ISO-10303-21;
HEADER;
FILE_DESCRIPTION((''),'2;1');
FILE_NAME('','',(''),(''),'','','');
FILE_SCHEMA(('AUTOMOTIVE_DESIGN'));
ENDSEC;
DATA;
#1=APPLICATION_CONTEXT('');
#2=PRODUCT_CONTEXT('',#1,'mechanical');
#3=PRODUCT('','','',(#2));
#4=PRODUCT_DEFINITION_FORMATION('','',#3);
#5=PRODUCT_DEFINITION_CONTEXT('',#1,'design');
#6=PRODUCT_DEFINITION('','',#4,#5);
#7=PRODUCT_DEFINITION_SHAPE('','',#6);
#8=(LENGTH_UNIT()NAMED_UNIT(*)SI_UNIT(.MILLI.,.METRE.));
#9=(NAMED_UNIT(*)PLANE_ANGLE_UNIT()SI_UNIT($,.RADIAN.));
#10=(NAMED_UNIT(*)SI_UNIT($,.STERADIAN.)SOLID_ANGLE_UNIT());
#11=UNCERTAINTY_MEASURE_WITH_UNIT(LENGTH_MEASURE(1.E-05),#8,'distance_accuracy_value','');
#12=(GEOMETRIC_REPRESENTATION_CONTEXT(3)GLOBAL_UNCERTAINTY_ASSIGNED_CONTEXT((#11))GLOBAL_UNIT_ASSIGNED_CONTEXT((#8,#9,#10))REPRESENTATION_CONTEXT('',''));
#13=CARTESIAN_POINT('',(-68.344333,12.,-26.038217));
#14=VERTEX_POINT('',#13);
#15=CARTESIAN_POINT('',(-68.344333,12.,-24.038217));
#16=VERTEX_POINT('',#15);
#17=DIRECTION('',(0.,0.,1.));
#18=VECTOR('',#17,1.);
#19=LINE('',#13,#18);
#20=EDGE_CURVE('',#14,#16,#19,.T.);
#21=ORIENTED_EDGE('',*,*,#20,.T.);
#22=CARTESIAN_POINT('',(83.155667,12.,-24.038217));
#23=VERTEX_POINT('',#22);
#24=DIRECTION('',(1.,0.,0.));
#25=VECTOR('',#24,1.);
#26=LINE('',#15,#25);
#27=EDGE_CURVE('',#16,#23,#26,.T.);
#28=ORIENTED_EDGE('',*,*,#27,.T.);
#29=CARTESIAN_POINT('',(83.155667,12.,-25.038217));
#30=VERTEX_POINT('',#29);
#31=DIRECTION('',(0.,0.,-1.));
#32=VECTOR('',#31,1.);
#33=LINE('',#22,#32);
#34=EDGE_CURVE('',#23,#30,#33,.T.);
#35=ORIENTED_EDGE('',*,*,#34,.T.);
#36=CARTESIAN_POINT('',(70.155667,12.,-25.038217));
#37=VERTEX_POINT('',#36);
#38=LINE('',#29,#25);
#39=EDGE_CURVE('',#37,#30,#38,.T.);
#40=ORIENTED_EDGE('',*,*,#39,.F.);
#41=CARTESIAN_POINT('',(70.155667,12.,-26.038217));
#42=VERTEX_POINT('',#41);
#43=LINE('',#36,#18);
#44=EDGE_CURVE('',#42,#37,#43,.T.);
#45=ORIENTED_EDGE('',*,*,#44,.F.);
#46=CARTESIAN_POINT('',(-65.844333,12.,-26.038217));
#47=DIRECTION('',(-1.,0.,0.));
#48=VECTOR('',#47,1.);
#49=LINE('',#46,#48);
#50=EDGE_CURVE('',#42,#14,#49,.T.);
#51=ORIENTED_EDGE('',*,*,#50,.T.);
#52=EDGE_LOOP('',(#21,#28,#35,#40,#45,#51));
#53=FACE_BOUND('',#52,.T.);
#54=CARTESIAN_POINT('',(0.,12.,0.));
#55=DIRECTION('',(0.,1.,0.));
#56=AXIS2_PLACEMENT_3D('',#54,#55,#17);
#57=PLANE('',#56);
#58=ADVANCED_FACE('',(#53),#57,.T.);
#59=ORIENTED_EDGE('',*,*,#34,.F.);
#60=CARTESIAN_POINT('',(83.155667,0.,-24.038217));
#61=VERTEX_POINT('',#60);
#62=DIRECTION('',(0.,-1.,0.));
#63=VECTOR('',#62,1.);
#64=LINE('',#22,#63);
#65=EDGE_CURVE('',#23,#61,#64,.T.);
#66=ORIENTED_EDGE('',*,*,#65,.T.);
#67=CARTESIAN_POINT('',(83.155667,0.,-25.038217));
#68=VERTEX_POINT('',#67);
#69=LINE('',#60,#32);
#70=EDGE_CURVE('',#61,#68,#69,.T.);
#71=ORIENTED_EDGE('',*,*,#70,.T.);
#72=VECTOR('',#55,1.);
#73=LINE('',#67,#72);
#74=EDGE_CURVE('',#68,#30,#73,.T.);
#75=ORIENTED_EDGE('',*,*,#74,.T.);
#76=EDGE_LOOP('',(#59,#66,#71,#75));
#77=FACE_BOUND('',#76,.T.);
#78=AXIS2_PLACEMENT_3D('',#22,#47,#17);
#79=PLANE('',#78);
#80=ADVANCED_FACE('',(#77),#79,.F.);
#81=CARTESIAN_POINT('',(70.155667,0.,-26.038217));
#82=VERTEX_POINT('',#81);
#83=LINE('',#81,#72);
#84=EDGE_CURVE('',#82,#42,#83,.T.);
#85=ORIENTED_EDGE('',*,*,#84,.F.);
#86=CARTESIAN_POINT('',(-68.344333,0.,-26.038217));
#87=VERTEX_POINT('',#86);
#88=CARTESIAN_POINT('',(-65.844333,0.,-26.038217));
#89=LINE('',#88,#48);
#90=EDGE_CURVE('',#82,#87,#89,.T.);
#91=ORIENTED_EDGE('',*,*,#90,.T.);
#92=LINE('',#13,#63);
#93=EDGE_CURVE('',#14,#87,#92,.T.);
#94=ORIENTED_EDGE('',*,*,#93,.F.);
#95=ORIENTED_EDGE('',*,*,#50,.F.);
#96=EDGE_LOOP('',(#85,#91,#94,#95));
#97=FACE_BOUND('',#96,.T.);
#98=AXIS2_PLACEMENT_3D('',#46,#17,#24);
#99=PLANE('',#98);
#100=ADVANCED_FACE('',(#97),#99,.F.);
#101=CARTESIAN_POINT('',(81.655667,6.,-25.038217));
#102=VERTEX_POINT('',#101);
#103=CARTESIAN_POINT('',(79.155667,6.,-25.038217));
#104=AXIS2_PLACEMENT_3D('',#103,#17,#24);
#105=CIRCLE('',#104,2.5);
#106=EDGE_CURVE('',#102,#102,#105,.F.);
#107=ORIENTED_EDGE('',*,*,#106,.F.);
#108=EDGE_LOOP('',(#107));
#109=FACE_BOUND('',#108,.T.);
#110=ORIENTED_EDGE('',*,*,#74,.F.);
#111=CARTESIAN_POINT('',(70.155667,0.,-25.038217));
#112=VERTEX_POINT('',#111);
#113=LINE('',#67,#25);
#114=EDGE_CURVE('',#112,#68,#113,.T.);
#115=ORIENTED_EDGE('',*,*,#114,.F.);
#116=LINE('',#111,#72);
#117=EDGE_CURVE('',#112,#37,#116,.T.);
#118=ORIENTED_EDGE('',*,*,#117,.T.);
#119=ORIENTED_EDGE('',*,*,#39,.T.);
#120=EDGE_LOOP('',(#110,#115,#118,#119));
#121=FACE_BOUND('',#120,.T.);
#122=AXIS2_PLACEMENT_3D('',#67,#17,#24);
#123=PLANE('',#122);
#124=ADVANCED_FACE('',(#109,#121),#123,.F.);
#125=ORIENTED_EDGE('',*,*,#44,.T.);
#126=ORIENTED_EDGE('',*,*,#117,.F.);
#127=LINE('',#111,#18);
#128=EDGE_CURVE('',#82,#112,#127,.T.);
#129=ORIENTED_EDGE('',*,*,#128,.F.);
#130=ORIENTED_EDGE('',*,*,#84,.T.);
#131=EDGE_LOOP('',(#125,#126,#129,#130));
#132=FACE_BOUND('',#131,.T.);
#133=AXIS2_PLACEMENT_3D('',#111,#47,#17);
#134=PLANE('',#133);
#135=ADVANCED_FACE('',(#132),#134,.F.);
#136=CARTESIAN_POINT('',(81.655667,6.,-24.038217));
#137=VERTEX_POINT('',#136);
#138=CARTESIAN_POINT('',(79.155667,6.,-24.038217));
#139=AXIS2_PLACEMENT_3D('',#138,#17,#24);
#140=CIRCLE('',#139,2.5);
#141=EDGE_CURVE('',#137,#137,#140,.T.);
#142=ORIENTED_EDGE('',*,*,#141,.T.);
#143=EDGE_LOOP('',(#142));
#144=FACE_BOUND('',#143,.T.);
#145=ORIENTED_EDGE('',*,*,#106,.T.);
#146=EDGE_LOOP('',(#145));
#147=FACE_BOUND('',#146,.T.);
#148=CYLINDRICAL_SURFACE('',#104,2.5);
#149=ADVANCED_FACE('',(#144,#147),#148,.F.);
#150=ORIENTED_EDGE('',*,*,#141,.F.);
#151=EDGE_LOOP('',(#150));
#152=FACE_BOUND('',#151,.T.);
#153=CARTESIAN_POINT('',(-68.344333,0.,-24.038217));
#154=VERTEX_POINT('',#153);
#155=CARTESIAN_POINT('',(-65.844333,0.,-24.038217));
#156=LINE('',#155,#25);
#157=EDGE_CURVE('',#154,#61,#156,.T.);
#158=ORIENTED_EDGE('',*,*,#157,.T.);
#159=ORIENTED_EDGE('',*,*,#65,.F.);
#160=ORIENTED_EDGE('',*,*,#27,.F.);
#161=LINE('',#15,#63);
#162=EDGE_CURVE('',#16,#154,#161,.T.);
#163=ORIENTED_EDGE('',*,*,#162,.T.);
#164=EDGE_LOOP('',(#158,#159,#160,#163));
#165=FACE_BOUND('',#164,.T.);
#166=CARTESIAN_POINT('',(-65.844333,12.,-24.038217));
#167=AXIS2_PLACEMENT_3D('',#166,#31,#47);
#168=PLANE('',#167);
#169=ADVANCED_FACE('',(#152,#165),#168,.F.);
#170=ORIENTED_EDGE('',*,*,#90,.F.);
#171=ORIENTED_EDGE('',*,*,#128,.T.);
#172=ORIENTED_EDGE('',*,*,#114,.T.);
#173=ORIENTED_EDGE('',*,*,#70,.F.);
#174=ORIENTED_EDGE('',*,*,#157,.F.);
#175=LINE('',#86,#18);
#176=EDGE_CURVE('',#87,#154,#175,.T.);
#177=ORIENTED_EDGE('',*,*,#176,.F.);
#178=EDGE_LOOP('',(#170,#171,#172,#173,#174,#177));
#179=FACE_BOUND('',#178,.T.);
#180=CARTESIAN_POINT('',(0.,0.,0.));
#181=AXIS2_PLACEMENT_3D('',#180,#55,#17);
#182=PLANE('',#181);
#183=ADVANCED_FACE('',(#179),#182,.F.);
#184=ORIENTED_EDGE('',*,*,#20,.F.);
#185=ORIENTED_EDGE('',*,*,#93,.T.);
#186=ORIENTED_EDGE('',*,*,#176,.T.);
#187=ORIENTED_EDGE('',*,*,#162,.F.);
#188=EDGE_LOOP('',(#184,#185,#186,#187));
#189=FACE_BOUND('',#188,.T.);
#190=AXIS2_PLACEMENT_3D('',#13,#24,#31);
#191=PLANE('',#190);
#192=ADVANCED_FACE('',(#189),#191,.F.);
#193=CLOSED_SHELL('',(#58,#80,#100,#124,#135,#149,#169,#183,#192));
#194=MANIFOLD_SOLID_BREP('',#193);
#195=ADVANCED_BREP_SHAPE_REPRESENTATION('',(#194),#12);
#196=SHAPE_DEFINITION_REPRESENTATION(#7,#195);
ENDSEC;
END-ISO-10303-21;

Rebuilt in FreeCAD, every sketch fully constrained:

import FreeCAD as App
import Part
import Sketcher
from FreeCAD import Vector
Q = App.Units.Quantity


def add_polygon(sketch, points):
    """Adds a closed chain of lines whose ends are joined by coincident constraints."""
    first, n = sketch.GeometryCount, len(points)
    for a, b in zip(points, points[1:] + points[:1]):
        sketch.addGeometry(Part.LineSegment(App.Vector(*a, 0), App.Vector(*b, 0)), False)
    for i in range(n):
        sketch.addConstraint(Sketcher.Constraint("Coincident", first + i, 2, first + (i + 1) % n, 1))

doc = App.newDocument("Part")
body = doc.addObject("PartDesign::Body", "Body")

# Sketch on XZ plane
sketch1 = body.newObject("Sketcher::SketchObject", "Sketch")
sketch1.AttachmentSupport = (doc.getObject("XZ_Plane"), [""])
sketch1.MapMode = "FlatFace"
add_polygon(sketch1, [(83.155667, -24.038217), (83.155667, -26.038217), (-68.344333, -26.038217), (-68.344333, -24.038217)])  # lines 0-3
sketch1.addConstraint(Sketcher.Constraint("Vertical", 0))
sketch1.addConstraint(Sketcher.Constraint("Horizontal", 1))
sketch1.addConstraint(Sketcher.Constraint("Vertical", 2))
sketch1.addConstraint(Sketcher.Constraint("Horizontal", 3))
sketch1.addConstraint(Sketcher.Constraint("DistanceY", 0, 2, 0, 1, Q("2 mm")))
sketch1.addConstraint(Sketcher.Constraint("DistanceX", 1, 2, 1, 1, Q("151.5 mm")))
sketch1.addConstraint(Sketcher.Constraint("DistanceX", -1, 1, 0, 2, Q("83.155667 mm")))
sketch1.addConstraint(Sketcher.Constraint("DistanceY", 0, 2, -1, 1, Q("26.038217 mm")))
pad1 = body.newObject("PartDesign::Pad", "Pad")
pad1.Profile = sketch1
pad1.Length = 12
pad1.Reversed = True

# Sketch on XY plane
sketch2 = body.newObject("Sketcher::SketchObject", "Sketch001")
sketch2.AttachmentSupport = (doc.getObject("XY_Plane"), [""])
sketch2.MapMode = "FlatFace"
sketch2.AttachmentOffset = App.Placement(Vector(0, 0, -24.038217), App.Rotation())
sketch2.addGeometry(Part.Circle(Vector(79.155667, 6, 0), Vector(0, 0, 1), 2.5), False)
sketch2.addConstraint(Sketcher.Constraint("Diameter", 0, Q("5 mm")))
sketch2.addConstraint(Sketcher.Constraint("DistanceY", -1, 1, 0, 3, Q("6 mm")))
sketch2.addConstraint(Sketcher.Constraint("DistanceX", -1, 1, 0, 3, Q("79.155667 mm")))
pocket1 = body.newObject("PartDesign::Pocket", "Pocket")
pocket1.Profile = sketch2
pocket1.Length = 1

# Sketch on XY plane
sketch3 = body.newObject("Sketcher::SketchObject", "Sketch002")
sketch3.AttachmentSupport = (doc.getObject("XY_Plane"), [""])
sketch3.MapMode = "FlatFace"
sketch3.AttachmentOffset = App.Placement(Vector(0, 0, -25.038217), App.Rotation())
sketch3.addGeometry(Part.Circle(Vector(79.155667, 6, 0), Vector(0, 0, 1), 1.5), False)
sketch3.addConstraint(Sketcher.Constraint("Diameter", 0, Q("3 mm")))
sketch3.addConstraint(Sketcher.Constraint("DistanceY", -1, 1, 0, 3, Q("6 mm")))
sketch3.addConstraint(Sketcher.Constraint("DistanceX", -1, 1, 0, 3, Q("79.155667 mm")))
pocket2 = body.newObject("PartDesign::Pocket", "Pocket001")
pocket2.Profile = sketch3
pocket2.Length = 1

# Sketch on XZ plane
sketch4 = body.newObject("Sketcher::SketchObject", "Sketch003")
sketch4.AttachmentSupport = (doc.getObject("XZ_Plane"), [""])
sketch4.MapMode = "FlatFace"
sketch4.AttachmentOffset = App.Placement(Vector(0, 0, -12), App.Rotation())
add_polygon(sketch4, [(70.155667, -26.038217), (70.155667, -25.038217), (83.155667, -25.038217), (83.155667, -26.038217)])  # lines 0-3
sketch4.addConstraint(Sketcher.Constraint("Vertical", 0))
sketch4.addConstraint(Sketcher.Constraint("Horizontal", 1))
sketch4.addConstraint(Sketcher.Constraint("Vertical", 2))
sketch4.addConstraint(Sketcher.Constraint("Horizontal", 3))
sketch4.addConstraint(Sketcher.Constraint("DistanceX", 1, 1, 1, 2, Q("13 mm")))
sketch4.addConstraint(Sketcher.Constraint("DistanceY", 0, 1, 0, 2, Q("1 mm")))
sketch4.addConstraint(Sketcher.Constraint("DistanceX", -1, 1, 0, 2, Q("70.155667 mm")))
sketch4.addConstraint(Sketcher.Constraint("DistanceY", 0, 2, -1, 1, Q("25.038217 mm")))
pocket3 = body.newObject("PartDesign::Pocket", "Pocket002")
pocket3.Profile = sketch4
pocket3.Length = 12
pocket3.Reversed = True

doc.recompute()
